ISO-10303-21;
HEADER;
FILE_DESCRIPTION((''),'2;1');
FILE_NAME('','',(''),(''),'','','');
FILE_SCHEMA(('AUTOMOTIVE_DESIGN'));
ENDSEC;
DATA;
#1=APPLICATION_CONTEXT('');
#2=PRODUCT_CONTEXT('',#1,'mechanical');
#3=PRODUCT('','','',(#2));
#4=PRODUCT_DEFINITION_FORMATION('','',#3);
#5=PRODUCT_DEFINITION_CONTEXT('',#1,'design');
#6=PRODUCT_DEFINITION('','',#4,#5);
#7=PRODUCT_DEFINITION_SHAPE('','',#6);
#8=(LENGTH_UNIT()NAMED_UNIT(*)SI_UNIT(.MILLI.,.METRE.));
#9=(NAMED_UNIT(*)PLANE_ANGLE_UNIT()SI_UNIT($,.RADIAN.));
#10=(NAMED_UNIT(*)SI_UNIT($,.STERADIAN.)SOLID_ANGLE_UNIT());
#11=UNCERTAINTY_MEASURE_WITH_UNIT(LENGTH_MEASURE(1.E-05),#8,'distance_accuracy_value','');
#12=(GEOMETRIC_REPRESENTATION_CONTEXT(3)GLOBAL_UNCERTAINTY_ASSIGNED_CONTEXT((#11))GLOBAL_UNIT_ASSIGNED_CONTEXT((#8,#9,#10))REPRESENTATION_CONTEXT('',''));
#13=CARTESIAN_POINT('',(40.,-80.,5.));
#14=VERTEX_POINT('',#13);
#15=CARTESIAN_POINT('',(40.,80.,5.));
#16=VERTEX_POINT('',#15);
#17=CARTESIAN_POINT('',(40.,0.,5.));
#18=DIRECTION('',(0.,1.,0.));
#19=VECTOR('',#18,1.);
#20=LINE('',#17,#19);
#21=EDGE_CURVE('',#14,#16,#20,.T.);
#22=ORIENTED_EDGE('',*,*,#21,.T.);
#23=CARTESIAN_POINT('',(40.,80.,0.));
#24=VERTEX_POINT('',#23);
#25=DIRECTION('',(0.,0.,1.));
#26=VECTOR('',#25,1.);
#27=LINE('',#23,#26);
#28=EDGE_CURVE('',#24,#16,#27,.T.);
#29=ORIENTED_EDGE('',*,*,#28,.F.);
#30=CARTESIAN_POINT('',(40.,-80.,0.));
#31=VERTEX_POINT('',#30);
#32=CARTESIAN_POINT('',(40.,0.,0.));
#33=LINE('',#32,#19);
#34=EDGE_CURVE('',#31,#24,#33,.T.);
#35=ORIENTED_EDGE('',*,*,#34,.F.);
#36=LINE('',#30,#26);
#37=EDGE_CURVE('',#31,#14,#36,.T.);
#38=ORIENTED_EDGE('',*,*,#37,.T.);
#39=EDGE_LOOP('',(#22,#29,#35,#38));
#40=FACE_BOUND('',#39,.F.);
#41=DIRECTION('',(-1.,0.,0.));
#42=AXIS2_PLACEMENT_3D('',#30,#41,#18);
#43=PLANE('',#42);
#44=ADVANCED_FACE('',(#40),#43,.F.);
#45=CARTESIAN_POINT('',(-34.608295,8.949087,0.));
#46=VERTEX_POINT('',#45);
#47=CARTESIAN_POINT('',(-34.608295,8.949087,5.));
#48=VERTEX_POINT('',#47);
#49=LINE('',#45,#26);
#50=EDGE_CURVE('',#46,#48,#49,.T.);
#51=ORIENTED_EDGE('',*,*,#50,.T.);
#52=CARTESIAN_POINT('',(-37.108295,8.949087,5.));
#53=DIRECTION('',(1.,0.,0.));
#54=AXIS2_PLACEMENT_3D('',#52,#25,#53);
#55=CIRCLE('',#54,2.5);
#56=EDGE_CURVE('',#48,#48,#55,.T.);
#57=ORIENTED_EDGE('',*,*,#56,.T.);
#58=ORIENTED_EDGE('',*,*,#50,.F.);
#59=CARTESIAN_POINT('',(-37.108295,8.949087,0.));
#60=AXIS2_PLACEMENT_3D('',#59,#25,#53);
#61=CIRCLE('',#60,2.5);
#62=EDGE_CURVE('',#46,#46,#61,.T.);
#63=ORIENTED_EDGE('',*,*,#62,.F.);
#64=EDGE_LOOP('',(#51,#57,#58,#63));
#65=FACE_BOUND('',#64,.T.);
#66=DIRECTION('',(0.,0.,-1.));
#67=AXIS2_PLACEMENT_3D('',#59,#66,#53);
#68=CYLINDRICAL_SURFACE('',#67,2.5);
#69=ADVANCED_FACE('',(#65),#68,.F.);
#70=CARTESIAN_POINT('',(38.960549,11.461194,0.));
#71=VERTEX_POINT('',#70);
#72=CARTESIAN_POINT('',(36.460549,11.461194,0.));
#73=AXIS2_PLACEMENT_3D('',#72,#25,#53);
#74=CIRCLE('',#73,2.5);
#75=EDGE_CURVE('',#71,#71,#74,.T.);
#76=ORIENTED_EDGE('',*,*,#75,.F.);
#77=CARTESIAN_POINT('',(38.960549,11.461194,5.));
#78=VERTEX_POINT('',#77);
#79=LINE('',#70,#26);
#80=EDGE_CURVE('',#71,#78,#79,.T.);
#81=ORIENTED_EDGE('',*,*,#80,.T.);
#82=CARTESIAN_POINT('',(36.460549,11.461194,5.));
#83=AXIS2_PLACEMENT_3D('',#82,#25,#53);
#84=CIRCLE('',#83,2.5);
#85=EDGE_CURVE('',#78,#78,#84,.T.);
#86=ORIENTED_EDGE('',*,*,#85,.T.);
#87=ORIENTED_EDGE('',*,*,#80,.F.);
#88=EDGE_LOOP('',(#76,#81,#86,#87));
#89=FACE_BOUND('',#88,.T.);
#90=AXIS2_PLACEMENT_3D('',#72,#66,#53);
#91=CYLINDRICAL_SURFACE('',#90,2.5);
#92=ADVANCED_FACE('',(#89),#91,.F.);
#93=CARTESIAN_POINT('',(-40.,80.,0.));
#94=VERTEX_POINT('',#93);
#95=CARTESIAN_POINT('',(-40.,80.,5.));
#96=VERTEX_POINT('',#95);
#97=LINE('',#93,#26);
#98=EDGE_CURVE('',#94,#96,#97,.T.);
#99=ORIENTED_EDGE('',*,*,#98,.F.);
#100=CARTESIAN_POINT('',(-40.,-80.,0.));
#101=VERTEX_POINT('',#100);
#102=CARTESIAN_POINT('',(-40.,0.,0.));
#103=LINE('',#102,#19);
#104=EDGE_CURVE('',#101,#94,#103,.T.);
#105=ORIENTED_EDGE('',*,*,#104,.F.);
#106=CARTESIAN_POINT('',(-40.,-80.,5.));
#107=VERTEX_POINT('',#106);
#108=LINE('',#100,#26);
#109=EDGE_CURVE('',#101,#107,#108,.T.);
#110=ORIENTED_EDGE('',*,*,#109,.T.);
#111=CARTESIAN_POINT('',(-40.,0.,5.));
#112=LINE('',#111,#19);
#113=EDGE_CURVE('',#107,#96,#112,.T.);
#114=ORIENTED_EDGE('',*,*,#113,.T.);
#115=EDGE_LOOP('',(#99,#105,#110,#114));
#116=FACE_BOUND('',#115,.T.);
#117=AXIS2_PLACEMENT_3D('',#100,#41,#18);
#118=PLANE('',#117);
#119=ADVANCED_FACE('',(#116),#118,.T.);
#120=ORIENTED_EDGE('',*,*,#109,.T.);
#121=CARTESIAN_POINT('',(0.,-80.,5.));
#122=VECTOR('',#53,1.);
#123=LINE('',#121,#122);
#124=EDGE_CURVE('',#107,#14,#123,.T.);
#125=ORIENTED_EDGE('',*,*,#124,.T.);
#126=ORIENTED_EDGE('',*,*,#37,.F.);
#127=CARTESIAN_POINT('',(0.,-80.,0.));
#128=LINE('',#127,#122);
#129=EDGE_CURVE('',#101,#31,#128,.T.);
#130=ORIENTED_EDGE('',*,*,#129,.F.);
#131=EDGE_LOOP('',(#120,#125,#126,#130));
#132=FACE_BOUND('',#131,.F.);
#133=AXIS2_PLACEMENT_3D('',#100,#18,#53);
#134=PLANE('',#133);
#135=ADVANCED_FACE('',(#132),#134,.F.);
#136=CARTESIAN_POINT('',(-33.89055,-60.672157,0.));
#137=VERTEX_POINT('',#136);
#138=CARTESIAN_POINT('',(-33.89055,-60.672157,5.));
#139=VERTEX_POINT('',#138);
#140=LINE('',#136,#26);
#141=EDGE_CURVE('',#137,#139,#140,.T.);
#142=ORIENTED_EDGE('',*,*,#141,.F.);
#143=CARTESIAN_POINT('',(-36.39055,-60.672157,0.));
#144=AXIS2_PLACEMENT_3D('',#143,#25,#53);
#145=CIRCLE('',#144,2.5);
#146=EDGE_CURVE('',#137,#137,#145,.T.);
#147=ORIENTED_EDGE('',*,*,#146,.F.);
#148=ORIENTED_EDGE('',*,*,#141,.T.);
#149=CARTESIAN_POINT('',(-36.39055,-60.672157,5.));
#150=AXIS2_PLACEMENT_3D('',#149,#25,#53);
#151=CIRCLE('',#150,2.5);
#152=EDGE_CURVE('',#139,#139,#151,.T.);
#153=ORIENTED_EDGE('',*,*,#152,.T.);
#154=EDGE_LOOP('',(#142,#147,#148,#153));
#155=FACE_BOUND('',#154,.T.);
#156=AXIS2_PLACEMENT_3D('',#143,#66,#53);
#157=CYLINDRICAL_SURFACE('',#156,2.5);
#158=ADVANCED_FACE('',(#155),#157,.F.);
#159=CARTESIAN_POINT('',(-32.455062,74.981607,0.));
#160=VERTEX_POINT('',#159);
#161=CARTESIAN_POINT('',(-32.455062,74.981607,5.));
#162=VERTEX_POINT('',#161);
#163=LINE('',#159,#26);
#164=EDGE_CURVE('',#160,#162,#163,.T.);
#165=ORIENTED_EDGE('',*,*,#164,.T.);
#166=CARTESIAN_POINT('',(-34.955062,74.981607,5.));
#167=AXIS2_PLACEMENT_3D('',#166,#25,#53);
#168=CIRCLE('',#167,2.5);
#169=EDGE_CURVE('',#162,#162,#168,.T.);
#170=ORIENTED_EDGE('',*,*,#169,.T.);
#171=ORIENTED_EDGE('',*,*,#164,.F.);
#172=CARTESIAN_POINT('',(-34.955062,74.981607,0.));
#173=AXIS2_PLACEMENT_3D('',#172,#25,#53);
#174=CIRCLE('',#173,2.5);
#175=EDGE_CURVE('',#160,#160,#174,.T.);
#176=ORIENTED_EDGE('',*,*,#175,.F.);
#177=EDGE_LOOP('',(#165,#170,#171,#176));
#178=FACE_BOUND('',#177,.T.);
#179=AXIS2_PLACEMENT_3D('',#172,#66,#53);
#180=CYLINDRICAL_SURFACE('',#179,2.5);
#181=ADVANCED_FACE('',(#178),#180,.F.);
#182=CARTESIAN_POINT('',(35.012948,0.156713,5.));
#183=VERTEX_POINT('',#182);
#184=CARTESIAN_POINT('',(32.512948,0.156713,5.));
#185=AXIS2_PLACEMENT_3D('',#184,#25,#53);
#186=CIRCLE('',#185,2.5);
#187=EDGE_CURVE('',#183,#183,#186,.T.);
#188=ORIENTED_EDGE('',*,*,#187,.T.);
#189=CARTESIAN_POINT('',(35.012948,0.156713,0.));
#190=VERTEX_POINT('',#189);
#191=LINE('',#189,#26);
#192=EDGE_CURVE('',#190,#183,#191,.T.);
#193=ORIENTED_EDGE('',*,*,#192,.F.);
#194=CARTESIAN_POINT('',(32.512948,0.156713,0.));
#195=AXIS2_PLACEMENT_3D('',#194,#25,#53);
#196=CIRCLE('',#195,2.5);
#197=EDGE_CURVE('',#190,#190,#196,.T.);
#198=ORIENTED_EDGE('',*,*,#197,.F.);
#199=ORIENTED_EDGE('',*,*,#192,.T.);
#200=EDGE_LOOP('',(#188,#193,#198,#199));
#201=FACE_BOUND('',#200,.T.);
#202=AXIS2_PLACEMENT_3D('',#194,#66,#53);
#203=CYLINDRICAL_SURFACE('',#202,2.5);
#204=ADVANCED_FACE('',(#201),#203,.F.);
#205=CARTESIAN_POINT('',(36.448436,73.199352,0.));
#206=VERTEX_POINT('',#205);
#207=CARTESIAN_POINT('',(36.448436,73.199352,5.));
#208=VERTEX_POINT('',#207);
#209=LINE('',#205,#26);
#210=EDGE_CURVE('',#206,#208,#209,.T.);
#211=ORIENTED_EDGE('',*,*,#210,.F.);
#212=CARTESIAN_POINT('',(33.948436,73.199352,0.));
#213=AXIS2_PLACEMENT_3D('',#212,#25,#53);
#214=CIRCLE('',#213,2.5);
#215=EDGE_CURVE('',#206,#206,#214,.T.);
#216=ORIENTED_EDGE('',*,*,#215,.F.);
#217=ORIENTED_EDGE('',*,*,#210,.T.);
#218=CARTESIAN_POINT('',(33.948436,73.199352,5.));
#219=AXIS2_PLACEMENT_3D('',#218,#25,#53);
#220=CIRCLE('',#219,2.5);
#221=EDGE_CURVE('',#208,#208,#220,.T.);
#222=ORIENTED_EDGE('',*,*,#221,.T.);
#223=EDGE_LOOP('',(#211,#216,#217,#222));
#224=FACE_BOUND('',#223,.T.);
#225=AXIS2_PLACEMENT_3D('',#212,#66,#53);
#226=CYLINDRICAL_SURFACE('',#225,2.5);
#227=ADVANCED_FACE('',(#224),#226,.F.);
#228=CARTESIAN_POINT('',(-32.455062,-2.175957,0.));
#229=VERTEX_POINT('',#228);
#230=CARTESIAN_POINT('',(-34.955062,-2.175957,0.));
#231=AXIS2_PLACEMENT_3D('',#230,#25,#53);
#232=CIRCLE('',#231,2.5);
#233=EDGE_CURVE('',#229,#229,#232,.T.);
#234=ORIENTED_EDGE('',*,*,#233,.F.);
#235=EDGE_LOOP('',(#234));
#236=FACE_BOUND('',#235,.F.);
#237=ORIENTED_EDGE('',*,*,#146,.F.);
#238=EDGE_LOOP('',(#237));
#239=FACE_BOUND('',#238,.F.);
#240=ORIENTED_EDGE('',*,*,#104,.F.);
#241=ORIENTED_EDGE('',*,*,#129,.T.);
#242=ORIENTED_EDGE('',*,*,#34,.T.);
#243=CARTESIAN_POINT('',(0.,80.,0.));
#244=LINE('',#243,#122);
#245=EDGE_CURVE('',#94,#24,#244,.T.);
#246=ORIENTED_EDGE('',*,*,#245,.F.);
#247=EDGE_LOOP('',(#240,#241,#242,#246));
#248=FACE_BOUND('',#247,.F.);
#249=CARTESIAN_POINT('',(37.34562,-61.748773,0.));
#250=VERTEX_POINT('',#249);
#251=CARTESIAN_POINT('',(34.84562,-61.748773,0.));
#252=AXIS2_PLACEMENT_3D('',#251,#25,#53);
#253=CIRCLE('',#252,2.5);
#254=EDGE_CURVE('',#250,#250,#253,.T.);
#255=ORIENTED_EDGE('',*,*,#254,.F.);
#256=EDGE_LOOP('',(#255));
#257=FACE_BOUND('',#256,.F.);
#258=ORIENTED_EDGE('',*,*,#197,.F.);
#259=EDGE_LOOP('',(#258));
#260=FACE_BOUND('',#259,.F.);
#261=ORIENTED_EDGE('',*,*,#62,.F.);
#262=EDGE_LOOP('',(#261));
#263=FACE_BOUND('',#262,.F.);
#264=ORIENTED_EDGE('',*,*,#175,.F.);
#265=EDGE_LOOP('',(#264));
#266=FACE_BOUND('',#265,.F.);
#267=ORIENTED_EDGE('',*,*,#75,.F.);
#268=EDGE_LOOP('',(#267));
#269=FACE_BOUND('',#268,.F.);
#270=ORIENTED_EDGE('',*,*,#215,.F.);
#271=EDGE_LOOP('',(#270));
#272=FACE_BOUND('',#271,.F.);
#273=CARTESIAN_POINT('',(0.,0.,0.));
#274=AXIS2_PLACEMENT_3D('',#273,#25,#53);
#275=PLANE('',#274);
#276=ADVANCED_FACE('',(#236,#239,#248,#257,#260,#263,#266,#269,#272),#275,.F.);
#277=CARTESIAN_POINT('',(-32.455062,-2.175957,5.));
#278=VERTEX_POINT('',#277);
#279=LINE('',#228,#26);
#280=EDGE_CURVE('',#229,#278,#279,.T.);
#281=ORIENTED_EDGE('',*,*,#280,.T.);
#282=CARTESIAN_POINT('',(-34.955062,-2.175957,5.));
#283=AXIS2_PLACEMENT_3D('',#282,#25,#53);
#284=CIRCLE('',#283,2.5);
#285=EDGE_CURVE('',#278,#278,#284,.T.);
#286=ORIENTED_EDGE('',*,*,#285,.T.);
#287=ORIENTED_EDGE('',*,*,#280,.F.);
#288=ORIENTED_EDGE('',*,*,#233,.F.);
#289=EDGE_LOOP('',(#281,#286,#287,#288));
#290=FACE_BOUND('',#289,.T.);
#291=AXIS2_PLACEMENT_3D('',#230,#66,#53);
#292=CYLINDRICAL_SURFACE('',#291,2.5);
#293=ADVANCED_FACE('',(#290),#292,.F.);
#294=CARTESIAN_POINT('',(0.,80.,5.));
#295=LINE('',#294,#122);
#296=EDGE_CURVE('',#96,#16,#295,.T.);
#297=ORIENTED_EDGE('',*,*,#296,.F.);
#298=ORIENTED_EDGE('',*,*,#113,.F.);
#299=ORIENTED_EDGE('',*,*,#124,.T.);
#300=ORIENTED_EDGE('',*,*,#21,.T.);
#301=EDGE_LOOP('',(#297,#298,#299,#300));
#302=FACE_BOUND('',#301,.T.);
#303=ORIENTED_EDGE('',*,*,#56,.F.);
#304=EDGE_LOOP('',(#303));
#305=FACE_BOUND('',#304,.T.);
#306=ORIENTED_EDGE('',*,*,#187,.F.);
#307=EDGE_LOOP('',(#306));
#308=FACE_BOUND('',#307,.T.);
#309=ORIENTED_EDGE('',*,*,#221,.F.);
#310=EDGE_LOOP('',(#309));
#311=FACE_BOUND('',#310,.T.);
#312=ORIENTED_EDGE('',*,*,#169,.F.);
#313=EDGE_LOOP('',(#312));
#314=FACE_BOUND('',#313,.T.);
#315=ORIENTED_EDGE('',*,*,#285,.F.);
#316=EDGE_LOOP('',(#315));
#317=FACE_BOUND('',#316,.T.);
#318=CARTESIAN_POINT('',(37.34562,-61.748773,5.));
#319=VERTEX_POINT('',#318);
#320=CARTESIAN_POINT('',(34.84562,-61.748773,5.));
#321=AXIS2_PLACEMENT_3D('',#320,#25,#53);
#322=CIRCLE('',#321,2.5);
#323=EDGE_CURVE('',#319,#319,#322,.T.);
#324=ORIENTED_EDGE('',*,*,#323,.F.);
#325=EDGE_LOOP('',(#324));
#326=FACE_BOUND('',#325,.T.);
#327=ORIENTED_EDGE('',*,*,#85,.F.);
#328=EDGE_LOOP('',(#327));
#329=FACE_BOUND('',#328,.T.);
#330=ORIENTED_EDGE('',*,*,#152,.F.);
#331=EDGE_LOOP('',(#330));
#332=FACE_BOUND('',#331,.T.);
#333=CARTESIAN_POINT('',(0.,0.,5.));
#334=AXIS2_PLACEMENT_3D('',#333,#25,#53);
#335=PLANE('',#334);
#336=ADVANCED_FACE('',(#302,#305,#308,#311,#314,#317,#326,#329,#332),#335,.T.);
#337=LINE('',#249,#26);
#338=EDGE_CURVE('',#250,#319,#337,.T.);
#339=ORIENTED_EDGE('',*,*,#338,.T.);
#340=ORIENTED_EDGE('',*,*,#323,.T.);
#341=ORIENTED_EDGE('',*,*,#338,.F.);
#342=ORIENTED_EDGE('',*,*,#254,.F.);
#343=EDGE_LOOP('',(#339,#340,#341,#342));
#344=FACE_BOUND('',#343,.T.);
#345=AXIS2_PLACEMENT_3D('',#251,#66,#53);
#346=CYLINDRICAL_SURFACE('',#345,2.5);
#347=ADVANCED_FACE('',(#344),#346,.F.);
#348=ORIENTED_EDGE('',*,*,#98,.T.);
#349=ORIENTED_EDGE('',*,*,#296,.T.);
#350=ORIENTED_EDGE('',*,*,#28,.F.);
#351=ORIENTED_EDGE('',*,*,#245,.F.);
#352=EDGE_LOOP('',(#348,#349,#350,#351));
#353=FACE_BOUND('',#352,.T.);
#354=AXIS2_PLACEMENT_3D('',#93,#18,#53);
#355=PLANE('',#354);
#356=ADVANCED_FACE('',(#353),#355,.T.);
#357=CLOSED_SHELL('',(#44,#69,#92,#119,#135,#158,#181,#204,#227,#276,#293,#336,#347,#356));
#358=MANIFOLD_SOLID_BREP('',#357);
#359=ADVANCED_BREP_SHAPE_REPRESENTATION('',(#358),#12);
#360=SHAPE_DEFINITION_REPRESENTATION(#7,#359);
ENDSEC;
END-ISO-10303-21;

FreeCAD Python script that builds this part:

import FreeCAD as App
import Part
import Sketcher

V = App.Vector
Q = App.Units.Quantity

doc = App.newDocument("Part")
params = doc.addObject("Spreadsheet::Sheet", "Params")
for row, (alias, value) in enumerate([
    ("sketch1_diameter", "5 mm"),
    ("sketch1_width", "80 mm"),
    ("sketch1_height", "160 mm"),
    ("pad1_length", "5 mm"),
], start=1):
    params.set(f"A{row}", alias)
    params.set(f"B{row}", "=" + value)
    params.setAlias(f"B{row}", alias)

body = doc.addObject("PartDesign::Body", "Body")

# Sketch on XY plane
sketch1 = doc.addObject("Sketcher::SketchObject", "Sketch")
body.addObject(sketch1)
sketch1.AttachmentSupport = (doc.XY_Plane, [""])
sketch1.MapMode = "FlatFace"
sketch1.addGeometry(Part.LineSegment(V(-40, 80, 0), V(-40, -80, 0)), False)
sketch1.addGeometry(Part.LineSegment(V(-40, -80, 0), V(40, -80, 0)), False)
sketch1.addGeometry(Part.LineSegment(V(40, -80, 0), V(40, 80, 0)), False)
sketch1.addGeometry(Part.LineSegment(V(40, 80, 0), V(-40, 80, 0)), False)
sketch1.addGeometry(Part.Circle(V(-36.4, -60.7, 0), V(0, 0, 1), 2.5), False)
sketch1.addGeometry(Part.Circle(V(-35, -2.2, 0), V(0, 0, 1), 2.5), False)
sketch1.addGeometry(Part.Circle(V(34.8, -61.7, 0), V(0, 0, 1), 2.5), False)
sketch1.addGeometry(Part.Circle(V(32.5, 0.2, 0), V(0, 0, 1), 2.5), False)
sketch1.addGeometry(Part.Circle(V(-37.1, 8.9, 0), V(0, 0, 1), 2.5), False)
sketch1.addGeometry(Part.Circle(V(-35, 75, 0), V(0, 0, 1), 2.5), False)
sketch1.addGeometry(Part.Circle(V(36.5, 11.5, 0), V(0, 0, 1), 2.5), False)
sketch1.addGeometry(Part.Circle(V(33.9, 73.2, 0), V(0, 0, 1), 2.5), False)
sketch1.addConstraint(Sketcher.Constraint("Coincident", 0, 2, 1, 1))
sketch1.addConstraint(Sketcher.Constraint("Coincident", 1, 2, 2, 1))
sketch1.addConstraint(Sketcher.Constraint("Coincident", 2, 2, 3, 1))
sketch1.addConstraint(Sketcher.Constraint("Coincident", 3, 2, 0, 1))
sketch1.addConstraint(Sketcher.Constraint("Vertical", 0))
sketch1.addConstraint(Sketcher.Constraint("Horizontal", 1))
sketch1.addConstraint(Sketcher.Constraint("Vertical", 2))
sketch1.addConstraint(Sketcher.Constraint("Horizontal", 3))
sketch1.addConstraint(Sketcher.Constraint("Equal", 4, 5))
sketch1.addConstraint(Sketcher.Constraint("Equal", 5, 6))
sketch1.addConstraint(Sketcher.Constraint("Equal", 6, 7))
sketch1.addConstraint(Sketcher.Constraint("Equal", 7, 8))
sketch1.addConstraint(Sketcher.Constraint("Equal", 8, 9))
sketch1.addConstraint(Sketcher.Constraint("Equal", 9, 10))
sketch1.addConstraint(Sketcher.Constraint("Equal", 10, 11))
sketch1.addConstraint(Sketcher.Constraint("Symmetric", 0, 2, 2, 2, -1, 1))
sketch1.addConstraint(Sketcher.Constraint("Vertical", 5, 3, 9, 3))
sketch1.addConstraint(Sketcher.Constraint("Diameter", 4, Q("5 mm")))
sketch1.addConstraint(Sketcher.Constraint("DistanceX", 1, 1, 1, 2, Q("80 mm")))
sketch1.addConstraint(Sketcher.Constraint("DistanceY", 0, 2, 0, 1, Q("160 mm")))
sketch1.addConstraint(Sketcher.Constraint("DistanceY", 4, 3, 5, 3, Q("58.4962 mm")))
sketch1.addConstraint(Sketcher.Constraint("DistanceX", 4, 3, 7, 3, Q("68.903498 mm")))
sketch1.addConstraint(Sketcher.Constraint("DistanceX", 7, 3, 10, 3, Q("3.947601 mm")))
sketch1.addConstraint(Sketcher.Constraint("DistanceX", 9, 3, 11, 3, Q("68.903498 mm")))
sketch1.addConstraint(Sketcher.Constraint("DistanceX", 4, 3, -1, 1, Q("36.39055 mm")))
sketch1.addConstraint(Sketcher.Constraint("DistanceX", 5, 3, -1, 1, Q("34.955062 mm")))
sketch1.addConstraint(Sketcher.Constraint("DistanceX", -1, 1, 6, 3, Q("34.84562 mm")))
sketch1.addConstraint(Sketcher.Constraint("DistanceY", 5, 3, 7, 3, Q("2.33267 mm")))
sketch1.addConstraint(Sketcher.Constraint("DistanceY", 6, 3, 8, 3, Q("70.69786 mm")))
sketch1.addConstraint(Sketcher.Constraint("DistanceY", 8, 3, 9, 3, Q("66.03252 mm")))
sketch1.addConstraint(Sketcher.Constraint("DistanceY", 7, 3, 10, 3, Q("11.304481 mm")))
sketch1.addConstraint(Sketcher.Constraint("DistanceY", 10, 3, 11, 3, Q("61.738158 mm")))
sketch1.addConstraint(Sketcher.Constraint("DistanceX", 8, 3, 11, 3, Q("71.056731 mm")))
sketch1.addConstraint(Sketcher.Constraint("DistanceY", 4, 3, -1, 1, Q("60.672157 mm")))
sketch1.addConstraint(Sketcher.Constraint("DistanceY", 6, 3, -1, 1, Q("61.748773 mm")))
sketch1.setExpression("Constraints[17]", "Params.sketch1_diameter")
sketch1.setExpression("Constraints[18]", "Params.sketch1_width")
sketch1.setExpression("Constraints[19]", "Params.sketch1_height")
pad1 = doc.addObject("PartDesign::Pad", "Pad")
body.addObject(pad1)
pad1.Profile = sketch1
pad1.setExpression("Length", "Params.pad1_length")

doc.recompute()
